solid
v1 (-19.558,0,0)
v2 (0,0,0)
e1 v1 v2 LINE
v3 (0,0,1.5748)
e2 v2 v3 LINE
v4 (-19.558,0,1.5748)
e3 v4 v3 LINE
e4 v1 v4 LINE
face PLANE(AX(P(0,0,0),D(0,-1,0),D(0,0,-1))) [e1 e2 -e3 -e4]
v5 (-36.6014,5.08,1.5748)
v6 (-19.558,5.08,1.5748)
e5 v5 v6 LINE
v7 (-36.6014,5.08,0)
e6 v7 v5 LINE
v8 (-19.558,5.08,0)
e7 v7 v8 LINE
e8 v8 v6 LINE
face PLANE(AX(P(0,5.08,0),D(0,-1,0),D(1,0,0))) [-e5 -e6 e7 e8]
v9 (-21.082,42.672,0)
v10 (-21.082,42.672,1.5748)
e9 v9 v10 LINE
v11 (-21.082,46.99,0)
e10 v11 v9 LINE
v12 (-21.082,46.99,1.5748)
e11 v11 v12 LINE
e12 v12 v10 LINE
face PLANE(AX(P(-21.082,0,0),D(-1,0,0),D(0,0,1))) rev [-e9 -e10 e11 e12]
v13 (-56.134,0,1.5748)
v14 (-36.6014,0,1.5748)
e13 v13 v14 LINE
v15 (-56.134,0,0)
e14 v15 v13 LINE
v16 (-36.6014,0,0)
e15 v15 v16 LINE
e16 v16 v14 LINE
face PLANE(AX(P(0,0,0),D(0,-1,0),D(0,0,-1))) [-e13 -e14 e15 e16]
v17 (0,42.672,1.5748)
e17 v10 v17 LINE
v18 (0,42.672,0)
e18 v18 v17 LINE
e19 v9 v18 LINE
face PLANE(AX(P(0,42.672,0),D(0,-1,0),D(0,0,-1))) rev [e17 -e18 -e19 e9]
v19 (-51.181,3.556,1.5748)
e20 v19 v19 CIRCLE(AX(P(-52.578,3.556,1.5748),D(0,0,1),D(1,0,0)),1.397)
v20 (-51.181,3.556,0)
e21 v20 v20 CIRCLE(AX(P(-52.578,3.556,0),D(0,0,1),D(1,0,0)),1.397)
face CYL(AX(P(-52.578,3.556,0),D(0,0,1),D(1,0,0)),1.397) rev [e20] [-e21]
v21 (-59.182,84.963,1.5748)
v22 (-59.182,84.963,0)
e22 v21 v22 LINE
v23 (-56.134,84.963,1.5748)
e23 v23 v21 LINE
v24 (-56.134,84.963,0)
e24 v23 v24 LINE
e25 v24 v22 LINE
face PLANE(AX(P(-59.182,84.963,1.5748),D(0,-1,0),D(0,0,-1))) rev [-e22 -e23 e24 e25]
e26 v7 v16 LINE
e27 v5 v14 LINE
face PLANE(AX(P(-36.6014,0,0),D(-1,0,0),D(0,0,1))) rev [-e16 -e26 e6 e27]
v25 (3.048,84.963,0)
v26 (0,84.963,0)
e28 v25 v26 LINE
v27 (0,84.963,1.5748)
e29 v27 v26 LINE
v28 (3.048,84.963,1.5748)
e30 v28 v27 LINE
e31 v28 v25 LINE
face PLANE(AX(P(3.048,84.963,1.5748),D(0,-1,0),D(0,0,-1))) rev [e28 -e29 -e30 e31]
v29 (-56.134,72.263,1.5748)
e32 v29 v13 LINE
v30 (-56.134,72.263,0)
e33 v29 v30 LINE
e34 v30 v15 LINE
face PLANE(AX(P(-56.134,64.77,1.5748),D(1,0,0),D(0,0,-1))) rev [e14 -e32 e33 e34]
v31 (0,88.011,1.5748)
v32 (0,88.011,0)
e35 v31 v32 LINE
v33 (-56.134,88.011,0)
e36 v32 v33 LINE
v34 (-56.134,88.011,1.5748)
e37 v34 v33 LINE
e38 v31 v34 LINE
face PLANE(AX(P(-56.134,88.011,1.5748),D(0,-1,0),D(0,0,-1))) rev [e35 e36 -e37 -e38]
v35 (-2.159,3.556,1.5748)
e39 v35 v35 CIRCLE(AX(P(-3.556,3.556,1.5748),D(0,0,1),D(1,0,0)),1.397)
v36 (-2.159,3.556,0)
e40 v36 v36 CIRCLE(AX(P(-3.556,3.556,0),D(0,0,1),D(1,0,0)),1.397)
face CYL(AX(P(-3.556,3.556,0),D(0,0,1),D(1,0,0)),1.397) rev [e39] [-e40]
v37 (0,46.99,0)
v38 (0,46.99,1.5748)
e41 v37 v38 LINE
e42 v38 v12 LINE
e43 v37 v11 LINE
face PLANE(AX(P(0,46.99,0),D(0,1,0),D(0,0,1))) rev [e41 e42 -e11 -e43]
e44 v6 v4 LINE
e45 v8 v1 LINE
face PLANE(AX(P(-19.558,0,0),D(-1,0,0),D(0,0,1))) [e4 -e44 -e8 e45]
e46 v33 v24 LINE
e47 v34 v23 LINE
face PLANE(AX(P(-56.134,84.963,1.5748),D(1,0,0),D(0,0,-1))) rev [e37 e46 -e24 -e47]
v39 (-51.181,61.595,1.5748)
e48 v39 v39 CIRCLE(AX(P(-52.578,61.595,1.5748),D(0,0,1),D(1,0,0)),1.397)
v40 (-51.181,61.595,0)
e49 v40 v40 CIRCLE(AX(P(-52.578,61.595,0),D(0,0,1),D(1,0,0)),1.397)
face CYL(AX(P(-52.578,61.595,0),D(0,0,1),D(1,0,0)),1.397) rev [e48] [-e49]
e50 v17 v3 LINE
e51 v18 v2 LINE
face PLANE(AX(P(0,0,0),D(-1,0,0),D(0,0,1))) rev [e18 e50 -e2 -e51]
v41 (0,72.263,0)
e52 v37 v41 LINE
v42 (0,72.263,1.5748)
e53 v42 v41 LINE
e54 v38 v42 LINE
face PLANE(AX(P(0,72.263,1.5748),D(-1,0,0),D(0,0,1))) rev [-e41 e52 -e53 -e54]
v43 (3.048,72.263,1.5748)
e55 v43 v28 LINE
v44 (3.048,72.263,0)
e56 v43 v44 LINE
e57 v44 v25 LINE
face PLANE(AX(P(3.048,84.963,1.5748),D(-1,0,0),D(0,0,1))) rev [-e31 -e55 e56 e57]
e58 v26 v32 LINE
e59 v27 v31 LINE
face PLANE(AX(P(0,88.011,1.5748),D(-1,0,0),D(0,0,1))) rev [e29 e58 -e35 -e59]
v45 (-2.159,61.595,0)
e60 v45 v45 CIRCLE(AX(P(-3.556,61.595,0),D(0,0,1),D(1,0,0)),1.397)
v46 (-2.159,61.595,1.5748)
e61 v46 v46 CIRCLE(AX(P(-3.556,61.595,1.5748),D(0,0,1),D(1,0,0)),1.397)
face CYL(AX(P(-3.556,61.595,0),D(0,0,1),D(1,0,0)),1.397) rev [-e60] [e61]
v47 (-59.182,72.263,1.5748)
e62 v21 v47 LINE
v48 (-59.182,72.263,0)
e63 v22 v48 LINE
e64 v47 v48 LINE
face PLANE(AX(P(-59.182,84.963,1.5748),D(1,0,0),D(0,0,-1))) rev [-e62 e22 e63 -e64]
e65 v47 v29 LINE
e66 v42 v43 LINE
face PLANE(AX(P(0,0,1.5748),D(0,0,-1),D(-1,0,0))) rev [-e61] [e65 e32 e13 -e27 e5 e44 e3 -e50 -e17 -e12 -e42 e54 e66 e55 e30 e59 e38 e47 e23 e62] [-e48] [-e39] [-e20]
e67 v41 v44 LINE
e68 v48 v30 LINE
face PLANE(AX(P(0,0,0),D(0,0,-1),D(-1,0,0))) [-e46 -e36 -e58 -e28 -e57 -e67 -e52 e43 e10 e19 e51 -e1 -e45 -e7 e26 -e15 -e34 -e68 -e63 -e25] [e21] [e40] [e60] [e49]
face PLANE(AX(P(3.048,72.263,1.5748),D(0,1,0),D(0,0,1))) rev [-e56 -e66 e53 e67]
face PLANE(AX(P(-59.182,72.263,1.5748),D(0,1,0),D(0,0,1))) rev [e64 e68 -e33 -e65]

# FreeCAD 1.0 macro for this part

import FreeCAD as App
import Part
import Sketcher
from FreeCAD import Vector
Q = App.Units.Quantity

doc = App.newDocument("Part")
body = doc.addObject("PartDesign::Body", "Body")

# Sketch on XY plane
sketch1 = body.newObject("Sketcher::SketchObject", "Sketch")
sketch1.AttachmentSupport = (doc.getObject("XY_Plane"), [""])
sketch1.MapMode = "FlatFace"
sketch1.addGeometry([
    Part.LineSegment(Vector(3, 85, 0), Vector(0, 85, 0)),  # 0
    Part.LineSegment(Vector(0, 85, 0), Vector(0, 88, 0)),  # 1
    Part.LineSegment(Vector(0, 88, 0), Vector(-56.1, 88, 0)),  # 2
    Part.LineSegment(Vector(-56.1, 88, 0), Vector(-56.1, 85, 0)),  # 3
    Part.LineSegment(Vector(-56.1, 85, 0), Vector(-59.2, 85, 0)),  # 4
    Part.LineSegment(Vector(-59.2, 85, 0), Vector(-59.2, 72.3, 0)),  # 5
    Part.LineSegment(Vector(-59.2, 72.3, 0), Vector(-56.1, 72.3, 0)),  # 6
    Part.LineSegment(Vector(-56.1, 72.3, 0), Vector(-56.1, 64.8, 0)),  # 7
    Part.LineSegment(Vector(-56.1, 64.8, 0), Vector(0, 64.8, 0)),  # 8
    Part.LineSegment(Vector(0, 64.8, 0), Vector(0, 72.3, 0)),  # 9
    Part.LineSegment(Vector(0, 72.3, 0), Vector(3, 72.3, 0)),  # 10
    Part.LineSegment(Vector(3, 72.3, 0), Vector(3, 85, 0)),  # 11
], False)
sketch1.addConstraint([
    Sketcher.Constraint("Coincident", 0, 2, 1, 1),
    Sketcher.Constraint("Coincident", 1, 2, 2, 1),
    Sketcher.Constraint("Coincident", 2, 2, 3, 1),
    Sketcher.Constraint("Coincident", 3, 2, 4, 1),
    Sketcher.Constraint("Coincident", 4, 2, 5, 1),
    Sketcher.Constraint("Coincident", 5, 2, 6, 1),
    Sketcher.Constraint("Coincident", 6, 2, 7, 1),
    Sketcher.Constraint("Coincident", 7, 2, 8, 1),
    Sketcher.Constraint("Coincident", 8, 2, 9, 1),
    Sketcher.Constraint("Coincident", 9, 2, 10, 1),
    Sketcher.Constraint("Coincident", 10, 2, 11, 1),
    Sketcher.Constraint("Coincident", 11, 2, 0, 1),
    Sketcher.Constraint("Horizontal", 0),
    Sketcher.Constraint("Vertical", 1),
    Sketcher.Constraint("Horizontal", 2),
    Sketcher.Constraint("Vertical", 3),
    Sketcher.Constraint("Horizontal", 4),
    Sketcher.Constraint("Vertical", 5),
    Sketcher.Constraint("Horizontal", 6),
    Sketcher.Constraint("Vertical", 7),
    Sketcher.Constraint("Horizontal", 8),
    Sketcher.Constraint("Vertical", 9),
    Sketcher.Constraint("Horizontal", 10),
    Sketcher.Constraint("Vertical", 11),
    Sketcher.Constraint("PointOnObject", 0, 2, -2),
    Sketcher.Constraint("PointOnObject", 8, 2, -2),
    Sketcher.Constraint("Horizontal", 0, 2, 3, 2),
    Sketcher.Constraint("Horizontal", 6, 2, 9, 2),
    Sketcher.Constraint("Vertical", 3, 2, 6, 2),
    Sketcher.Constraint("Equal", 0, 4),
    Sketcher.Constraint("Equal", 10, 1),
    Sketcher.Constraint("DistanceY", 5, 2, 5, 1, Q("0.5 in")),
    Sketcher.Constraint("DistanceX", 0, 2, 0, 1, Q("0.12 in")),
    Sketcher.Constraint("DistanceX", 2, 2, 2, 1, Q("2.21 in")),
    Sketcher.Constraint("DistanceY", 7, 2, 7, 1, Q("0.295 in")),
    Sketcher.Constraint("DistanceY", -1, 1, 7, 2, Q("2.55 in")),
])
pad1 = body.newObject("PartDesign::Pad", "Pad")
pad1.Profile = sketch1
pad1.Length = Q("0.062 in")

# Sketch on XY plane
sketch2 = body.newObject("Sketcher::SketchObject", "Sketch001")
sketch2.AttachmentSupport = (doc.getObject("XY_Plane"), [""])
sketch2.MapMode = "FlatFace"
sketch2.AttachmentOffset = App.Placement(Vector(0, 0, 0.062 * 25.4), App.Rotation())
sketch2.addGeometry([
    Part.LineSegment(Vector(-36.6, 0, 0), Vector(-36.6, 5.1, 0)),  # 0
    Part.LineSegment(Vector(-36.6, 5.1, 0), Vector(-19.6, 5.1, 0)),  # 1
    Part.LineSegment(Vector(-19.6, 5.1, 0), Vector(-19.6, 0, 0)),  # 2
    Part.LineSegment(Vector(-19.6, 0, 0), Vector(0, 0, 0)),  # 3
    Part.LineSegment(Vector(0, 0, 0), Vector(0, 42.7, 0)),  # 4
    Part.LineSegment(Vector(0, 42.7, 0), Vector(-21.1, 42.7, 0)),  # 5
    Part.LineSegment(Vector(-21.1, 42.7, 0), Vector(-21.1, 47, 0)),  # 6
    Part.LineSegment(Vector(-21.1, 47, 0), Vector(0, 47, 0)),  # 7
    Part.LineSegment(Vector(0, 47, 0), Vector(0, 64.8, 0)),  # 8
    Part.LineSegment(Vector(0, 64.8, 0), Vector(-56.1, 64.8, 0)),  # 9
    Part.LineSegment(Vector(-56.1, 64.8, 0), Vector(-56.1, 0, 0)),  # 10
    Part.LineSegment(Vector(-56.1, 0, 0), Vector(-36.6, 0, 0)),  # 11
    Part.Circle(Vector(-52.6, 3.6, 0), Vector(0, 0, 1), 1.4),  # 12
    Part.Circle(Vector(-3.6, 3.6, 0), Vector(0, 0, 1), 1.4),  # 13
    Part.Circle(Vector(-52.6, 61.6, 0), Vector(0, 0, 1), 1.4),  # 14
    Part.Circle(Vector(-3.6, 61.6, 0), Vector(0, 0, 1), 1.4),  # 15
], False)
sketch2.addConstraint([
    Sketcher.Constraint("Coincident", 0, 2, 1, 1),
    Sketcher.Constraint("Coincident", 1, 2, 2, 1),
    Sketcher.Constraint("Coincident", 2, 2, 3, 1),
    Sketcher.Constraint("Coincident", 3, 2, 4, 1),
    Sketcher.Constraint("Coincident", 4, 2, 5, 1),
    Sketcher.Constraint("Coincident", 5, 2, 6, 1),
    Sketcher.Constraint("Coincident", 6, 2, 7, 1),
    Sketcher.Constraint("Coincident", 7, 2, 8, 1),
    Sketcher.Constraint("Coincident", 8, 2, 9, 1),
    Sketcher.Constraint("Coincident", 9, 2, 10, 1),
    Sketcher.Constraint("Coincident", 10, 2, 11, 1),
    Sketcher.Constraint("Coincident", 11, 2, 0, 1),
    Sketcher.Constraint("Vertical", 0),
    Sketcher.Constraint("Horizontal", 1),
    Sketcher.Constraint("Vertical", 2),
    Sketcher.Constraint("Horizontal", 3),
    Sketcher.Constraint("Vertical", 4),
    Sketcher.Constraint("Horizontal", 5),
    Sketcher.Constraint("Vertical", 6),
    Sketcher.Constraint("Horizontal", 7),
    Sketcher.Constraint("Vertical", 8),
    Sketcher.Constraint("Horizontal", 9),
    Sketcher.Constraint("Vertical", 10),
    Sketcher.Constraint("Horizontal", 11),
    Sketcher.Constraint("Coincident", 3, 2, -1, 1),
    Sketcher.Constraint("Equal", 12, 13),
    Sketcher.Constraint("Equal", 13, 14),
    Sketcher.Constraint("Equal", 14, 15),
    Sketcher.Constraint("PointOnObject", 7, 2, -2),
    Sketcher.Constraint("PointOnObject", 10, 2, -1),
    Sketcher.Constraint("Horizontal", 12, 3, 13, 3),
    Sketcher.Constraint("Horizontal", 14, 3, 15, 3),
    Sketcher.Constraint("Vertical", 12, 3, 14, 3),
    Sketcher.Constraint("Vertical", 13, 3, 15, 3),
    Sketcher.Constraint("Diameter", 12, Q("0.11 in")),
    Sketcher.Constraint("DistanceY", 0, 1, 0, 2, Q("0.2 in")),
    Sketcher.Constraint("DistanceY", 8, 1, 8, 2, Q("0.7 in")),
    Sketcher.Constraint("DistanceX", 3, 1, 3, 2, Q("0.77 in")),
    Sketcher.Constraint("DistanceX", 5, 2, 5, 1, Q("0.83 in")),
    Sketcher.Constraint("DistanceX", 9, 2, 9, 1, Q("2.21 in")),
    Sketcher.Constraint("DistanceY", 4, 1, 4, 2, Q("1.68 in")),
    Sketcher.Constraint("DistanceY", 6, 1, 6, 2, Q("0.17 in")),
    Sketcher.Constraint("DistanceX", 12, 3, 1, 2, Q("1.3 in")),
    Sketcher.Constraint("DistanceX", 1, 1, 1, 2, Q("0.671 in")),
    Sketcher.Constraint("DistanceY", -1, 1, 12, 3, Q("0.14 in")),
    Sketcher.Constraint("DistanceX", 13, 3, -1, 1, Q("0.14 in")),
    Sketcher.Constraint("DistanceY", -1, 1, 14, 3, Q("2.425 in")),
])
pad2 = body.newObject("PartDesign::Pad", "Pad001")
pad2.Profile = sketch2
pad2.Length = Q("0.062 in")
pad2.Reversed = True

doc.recompute()
